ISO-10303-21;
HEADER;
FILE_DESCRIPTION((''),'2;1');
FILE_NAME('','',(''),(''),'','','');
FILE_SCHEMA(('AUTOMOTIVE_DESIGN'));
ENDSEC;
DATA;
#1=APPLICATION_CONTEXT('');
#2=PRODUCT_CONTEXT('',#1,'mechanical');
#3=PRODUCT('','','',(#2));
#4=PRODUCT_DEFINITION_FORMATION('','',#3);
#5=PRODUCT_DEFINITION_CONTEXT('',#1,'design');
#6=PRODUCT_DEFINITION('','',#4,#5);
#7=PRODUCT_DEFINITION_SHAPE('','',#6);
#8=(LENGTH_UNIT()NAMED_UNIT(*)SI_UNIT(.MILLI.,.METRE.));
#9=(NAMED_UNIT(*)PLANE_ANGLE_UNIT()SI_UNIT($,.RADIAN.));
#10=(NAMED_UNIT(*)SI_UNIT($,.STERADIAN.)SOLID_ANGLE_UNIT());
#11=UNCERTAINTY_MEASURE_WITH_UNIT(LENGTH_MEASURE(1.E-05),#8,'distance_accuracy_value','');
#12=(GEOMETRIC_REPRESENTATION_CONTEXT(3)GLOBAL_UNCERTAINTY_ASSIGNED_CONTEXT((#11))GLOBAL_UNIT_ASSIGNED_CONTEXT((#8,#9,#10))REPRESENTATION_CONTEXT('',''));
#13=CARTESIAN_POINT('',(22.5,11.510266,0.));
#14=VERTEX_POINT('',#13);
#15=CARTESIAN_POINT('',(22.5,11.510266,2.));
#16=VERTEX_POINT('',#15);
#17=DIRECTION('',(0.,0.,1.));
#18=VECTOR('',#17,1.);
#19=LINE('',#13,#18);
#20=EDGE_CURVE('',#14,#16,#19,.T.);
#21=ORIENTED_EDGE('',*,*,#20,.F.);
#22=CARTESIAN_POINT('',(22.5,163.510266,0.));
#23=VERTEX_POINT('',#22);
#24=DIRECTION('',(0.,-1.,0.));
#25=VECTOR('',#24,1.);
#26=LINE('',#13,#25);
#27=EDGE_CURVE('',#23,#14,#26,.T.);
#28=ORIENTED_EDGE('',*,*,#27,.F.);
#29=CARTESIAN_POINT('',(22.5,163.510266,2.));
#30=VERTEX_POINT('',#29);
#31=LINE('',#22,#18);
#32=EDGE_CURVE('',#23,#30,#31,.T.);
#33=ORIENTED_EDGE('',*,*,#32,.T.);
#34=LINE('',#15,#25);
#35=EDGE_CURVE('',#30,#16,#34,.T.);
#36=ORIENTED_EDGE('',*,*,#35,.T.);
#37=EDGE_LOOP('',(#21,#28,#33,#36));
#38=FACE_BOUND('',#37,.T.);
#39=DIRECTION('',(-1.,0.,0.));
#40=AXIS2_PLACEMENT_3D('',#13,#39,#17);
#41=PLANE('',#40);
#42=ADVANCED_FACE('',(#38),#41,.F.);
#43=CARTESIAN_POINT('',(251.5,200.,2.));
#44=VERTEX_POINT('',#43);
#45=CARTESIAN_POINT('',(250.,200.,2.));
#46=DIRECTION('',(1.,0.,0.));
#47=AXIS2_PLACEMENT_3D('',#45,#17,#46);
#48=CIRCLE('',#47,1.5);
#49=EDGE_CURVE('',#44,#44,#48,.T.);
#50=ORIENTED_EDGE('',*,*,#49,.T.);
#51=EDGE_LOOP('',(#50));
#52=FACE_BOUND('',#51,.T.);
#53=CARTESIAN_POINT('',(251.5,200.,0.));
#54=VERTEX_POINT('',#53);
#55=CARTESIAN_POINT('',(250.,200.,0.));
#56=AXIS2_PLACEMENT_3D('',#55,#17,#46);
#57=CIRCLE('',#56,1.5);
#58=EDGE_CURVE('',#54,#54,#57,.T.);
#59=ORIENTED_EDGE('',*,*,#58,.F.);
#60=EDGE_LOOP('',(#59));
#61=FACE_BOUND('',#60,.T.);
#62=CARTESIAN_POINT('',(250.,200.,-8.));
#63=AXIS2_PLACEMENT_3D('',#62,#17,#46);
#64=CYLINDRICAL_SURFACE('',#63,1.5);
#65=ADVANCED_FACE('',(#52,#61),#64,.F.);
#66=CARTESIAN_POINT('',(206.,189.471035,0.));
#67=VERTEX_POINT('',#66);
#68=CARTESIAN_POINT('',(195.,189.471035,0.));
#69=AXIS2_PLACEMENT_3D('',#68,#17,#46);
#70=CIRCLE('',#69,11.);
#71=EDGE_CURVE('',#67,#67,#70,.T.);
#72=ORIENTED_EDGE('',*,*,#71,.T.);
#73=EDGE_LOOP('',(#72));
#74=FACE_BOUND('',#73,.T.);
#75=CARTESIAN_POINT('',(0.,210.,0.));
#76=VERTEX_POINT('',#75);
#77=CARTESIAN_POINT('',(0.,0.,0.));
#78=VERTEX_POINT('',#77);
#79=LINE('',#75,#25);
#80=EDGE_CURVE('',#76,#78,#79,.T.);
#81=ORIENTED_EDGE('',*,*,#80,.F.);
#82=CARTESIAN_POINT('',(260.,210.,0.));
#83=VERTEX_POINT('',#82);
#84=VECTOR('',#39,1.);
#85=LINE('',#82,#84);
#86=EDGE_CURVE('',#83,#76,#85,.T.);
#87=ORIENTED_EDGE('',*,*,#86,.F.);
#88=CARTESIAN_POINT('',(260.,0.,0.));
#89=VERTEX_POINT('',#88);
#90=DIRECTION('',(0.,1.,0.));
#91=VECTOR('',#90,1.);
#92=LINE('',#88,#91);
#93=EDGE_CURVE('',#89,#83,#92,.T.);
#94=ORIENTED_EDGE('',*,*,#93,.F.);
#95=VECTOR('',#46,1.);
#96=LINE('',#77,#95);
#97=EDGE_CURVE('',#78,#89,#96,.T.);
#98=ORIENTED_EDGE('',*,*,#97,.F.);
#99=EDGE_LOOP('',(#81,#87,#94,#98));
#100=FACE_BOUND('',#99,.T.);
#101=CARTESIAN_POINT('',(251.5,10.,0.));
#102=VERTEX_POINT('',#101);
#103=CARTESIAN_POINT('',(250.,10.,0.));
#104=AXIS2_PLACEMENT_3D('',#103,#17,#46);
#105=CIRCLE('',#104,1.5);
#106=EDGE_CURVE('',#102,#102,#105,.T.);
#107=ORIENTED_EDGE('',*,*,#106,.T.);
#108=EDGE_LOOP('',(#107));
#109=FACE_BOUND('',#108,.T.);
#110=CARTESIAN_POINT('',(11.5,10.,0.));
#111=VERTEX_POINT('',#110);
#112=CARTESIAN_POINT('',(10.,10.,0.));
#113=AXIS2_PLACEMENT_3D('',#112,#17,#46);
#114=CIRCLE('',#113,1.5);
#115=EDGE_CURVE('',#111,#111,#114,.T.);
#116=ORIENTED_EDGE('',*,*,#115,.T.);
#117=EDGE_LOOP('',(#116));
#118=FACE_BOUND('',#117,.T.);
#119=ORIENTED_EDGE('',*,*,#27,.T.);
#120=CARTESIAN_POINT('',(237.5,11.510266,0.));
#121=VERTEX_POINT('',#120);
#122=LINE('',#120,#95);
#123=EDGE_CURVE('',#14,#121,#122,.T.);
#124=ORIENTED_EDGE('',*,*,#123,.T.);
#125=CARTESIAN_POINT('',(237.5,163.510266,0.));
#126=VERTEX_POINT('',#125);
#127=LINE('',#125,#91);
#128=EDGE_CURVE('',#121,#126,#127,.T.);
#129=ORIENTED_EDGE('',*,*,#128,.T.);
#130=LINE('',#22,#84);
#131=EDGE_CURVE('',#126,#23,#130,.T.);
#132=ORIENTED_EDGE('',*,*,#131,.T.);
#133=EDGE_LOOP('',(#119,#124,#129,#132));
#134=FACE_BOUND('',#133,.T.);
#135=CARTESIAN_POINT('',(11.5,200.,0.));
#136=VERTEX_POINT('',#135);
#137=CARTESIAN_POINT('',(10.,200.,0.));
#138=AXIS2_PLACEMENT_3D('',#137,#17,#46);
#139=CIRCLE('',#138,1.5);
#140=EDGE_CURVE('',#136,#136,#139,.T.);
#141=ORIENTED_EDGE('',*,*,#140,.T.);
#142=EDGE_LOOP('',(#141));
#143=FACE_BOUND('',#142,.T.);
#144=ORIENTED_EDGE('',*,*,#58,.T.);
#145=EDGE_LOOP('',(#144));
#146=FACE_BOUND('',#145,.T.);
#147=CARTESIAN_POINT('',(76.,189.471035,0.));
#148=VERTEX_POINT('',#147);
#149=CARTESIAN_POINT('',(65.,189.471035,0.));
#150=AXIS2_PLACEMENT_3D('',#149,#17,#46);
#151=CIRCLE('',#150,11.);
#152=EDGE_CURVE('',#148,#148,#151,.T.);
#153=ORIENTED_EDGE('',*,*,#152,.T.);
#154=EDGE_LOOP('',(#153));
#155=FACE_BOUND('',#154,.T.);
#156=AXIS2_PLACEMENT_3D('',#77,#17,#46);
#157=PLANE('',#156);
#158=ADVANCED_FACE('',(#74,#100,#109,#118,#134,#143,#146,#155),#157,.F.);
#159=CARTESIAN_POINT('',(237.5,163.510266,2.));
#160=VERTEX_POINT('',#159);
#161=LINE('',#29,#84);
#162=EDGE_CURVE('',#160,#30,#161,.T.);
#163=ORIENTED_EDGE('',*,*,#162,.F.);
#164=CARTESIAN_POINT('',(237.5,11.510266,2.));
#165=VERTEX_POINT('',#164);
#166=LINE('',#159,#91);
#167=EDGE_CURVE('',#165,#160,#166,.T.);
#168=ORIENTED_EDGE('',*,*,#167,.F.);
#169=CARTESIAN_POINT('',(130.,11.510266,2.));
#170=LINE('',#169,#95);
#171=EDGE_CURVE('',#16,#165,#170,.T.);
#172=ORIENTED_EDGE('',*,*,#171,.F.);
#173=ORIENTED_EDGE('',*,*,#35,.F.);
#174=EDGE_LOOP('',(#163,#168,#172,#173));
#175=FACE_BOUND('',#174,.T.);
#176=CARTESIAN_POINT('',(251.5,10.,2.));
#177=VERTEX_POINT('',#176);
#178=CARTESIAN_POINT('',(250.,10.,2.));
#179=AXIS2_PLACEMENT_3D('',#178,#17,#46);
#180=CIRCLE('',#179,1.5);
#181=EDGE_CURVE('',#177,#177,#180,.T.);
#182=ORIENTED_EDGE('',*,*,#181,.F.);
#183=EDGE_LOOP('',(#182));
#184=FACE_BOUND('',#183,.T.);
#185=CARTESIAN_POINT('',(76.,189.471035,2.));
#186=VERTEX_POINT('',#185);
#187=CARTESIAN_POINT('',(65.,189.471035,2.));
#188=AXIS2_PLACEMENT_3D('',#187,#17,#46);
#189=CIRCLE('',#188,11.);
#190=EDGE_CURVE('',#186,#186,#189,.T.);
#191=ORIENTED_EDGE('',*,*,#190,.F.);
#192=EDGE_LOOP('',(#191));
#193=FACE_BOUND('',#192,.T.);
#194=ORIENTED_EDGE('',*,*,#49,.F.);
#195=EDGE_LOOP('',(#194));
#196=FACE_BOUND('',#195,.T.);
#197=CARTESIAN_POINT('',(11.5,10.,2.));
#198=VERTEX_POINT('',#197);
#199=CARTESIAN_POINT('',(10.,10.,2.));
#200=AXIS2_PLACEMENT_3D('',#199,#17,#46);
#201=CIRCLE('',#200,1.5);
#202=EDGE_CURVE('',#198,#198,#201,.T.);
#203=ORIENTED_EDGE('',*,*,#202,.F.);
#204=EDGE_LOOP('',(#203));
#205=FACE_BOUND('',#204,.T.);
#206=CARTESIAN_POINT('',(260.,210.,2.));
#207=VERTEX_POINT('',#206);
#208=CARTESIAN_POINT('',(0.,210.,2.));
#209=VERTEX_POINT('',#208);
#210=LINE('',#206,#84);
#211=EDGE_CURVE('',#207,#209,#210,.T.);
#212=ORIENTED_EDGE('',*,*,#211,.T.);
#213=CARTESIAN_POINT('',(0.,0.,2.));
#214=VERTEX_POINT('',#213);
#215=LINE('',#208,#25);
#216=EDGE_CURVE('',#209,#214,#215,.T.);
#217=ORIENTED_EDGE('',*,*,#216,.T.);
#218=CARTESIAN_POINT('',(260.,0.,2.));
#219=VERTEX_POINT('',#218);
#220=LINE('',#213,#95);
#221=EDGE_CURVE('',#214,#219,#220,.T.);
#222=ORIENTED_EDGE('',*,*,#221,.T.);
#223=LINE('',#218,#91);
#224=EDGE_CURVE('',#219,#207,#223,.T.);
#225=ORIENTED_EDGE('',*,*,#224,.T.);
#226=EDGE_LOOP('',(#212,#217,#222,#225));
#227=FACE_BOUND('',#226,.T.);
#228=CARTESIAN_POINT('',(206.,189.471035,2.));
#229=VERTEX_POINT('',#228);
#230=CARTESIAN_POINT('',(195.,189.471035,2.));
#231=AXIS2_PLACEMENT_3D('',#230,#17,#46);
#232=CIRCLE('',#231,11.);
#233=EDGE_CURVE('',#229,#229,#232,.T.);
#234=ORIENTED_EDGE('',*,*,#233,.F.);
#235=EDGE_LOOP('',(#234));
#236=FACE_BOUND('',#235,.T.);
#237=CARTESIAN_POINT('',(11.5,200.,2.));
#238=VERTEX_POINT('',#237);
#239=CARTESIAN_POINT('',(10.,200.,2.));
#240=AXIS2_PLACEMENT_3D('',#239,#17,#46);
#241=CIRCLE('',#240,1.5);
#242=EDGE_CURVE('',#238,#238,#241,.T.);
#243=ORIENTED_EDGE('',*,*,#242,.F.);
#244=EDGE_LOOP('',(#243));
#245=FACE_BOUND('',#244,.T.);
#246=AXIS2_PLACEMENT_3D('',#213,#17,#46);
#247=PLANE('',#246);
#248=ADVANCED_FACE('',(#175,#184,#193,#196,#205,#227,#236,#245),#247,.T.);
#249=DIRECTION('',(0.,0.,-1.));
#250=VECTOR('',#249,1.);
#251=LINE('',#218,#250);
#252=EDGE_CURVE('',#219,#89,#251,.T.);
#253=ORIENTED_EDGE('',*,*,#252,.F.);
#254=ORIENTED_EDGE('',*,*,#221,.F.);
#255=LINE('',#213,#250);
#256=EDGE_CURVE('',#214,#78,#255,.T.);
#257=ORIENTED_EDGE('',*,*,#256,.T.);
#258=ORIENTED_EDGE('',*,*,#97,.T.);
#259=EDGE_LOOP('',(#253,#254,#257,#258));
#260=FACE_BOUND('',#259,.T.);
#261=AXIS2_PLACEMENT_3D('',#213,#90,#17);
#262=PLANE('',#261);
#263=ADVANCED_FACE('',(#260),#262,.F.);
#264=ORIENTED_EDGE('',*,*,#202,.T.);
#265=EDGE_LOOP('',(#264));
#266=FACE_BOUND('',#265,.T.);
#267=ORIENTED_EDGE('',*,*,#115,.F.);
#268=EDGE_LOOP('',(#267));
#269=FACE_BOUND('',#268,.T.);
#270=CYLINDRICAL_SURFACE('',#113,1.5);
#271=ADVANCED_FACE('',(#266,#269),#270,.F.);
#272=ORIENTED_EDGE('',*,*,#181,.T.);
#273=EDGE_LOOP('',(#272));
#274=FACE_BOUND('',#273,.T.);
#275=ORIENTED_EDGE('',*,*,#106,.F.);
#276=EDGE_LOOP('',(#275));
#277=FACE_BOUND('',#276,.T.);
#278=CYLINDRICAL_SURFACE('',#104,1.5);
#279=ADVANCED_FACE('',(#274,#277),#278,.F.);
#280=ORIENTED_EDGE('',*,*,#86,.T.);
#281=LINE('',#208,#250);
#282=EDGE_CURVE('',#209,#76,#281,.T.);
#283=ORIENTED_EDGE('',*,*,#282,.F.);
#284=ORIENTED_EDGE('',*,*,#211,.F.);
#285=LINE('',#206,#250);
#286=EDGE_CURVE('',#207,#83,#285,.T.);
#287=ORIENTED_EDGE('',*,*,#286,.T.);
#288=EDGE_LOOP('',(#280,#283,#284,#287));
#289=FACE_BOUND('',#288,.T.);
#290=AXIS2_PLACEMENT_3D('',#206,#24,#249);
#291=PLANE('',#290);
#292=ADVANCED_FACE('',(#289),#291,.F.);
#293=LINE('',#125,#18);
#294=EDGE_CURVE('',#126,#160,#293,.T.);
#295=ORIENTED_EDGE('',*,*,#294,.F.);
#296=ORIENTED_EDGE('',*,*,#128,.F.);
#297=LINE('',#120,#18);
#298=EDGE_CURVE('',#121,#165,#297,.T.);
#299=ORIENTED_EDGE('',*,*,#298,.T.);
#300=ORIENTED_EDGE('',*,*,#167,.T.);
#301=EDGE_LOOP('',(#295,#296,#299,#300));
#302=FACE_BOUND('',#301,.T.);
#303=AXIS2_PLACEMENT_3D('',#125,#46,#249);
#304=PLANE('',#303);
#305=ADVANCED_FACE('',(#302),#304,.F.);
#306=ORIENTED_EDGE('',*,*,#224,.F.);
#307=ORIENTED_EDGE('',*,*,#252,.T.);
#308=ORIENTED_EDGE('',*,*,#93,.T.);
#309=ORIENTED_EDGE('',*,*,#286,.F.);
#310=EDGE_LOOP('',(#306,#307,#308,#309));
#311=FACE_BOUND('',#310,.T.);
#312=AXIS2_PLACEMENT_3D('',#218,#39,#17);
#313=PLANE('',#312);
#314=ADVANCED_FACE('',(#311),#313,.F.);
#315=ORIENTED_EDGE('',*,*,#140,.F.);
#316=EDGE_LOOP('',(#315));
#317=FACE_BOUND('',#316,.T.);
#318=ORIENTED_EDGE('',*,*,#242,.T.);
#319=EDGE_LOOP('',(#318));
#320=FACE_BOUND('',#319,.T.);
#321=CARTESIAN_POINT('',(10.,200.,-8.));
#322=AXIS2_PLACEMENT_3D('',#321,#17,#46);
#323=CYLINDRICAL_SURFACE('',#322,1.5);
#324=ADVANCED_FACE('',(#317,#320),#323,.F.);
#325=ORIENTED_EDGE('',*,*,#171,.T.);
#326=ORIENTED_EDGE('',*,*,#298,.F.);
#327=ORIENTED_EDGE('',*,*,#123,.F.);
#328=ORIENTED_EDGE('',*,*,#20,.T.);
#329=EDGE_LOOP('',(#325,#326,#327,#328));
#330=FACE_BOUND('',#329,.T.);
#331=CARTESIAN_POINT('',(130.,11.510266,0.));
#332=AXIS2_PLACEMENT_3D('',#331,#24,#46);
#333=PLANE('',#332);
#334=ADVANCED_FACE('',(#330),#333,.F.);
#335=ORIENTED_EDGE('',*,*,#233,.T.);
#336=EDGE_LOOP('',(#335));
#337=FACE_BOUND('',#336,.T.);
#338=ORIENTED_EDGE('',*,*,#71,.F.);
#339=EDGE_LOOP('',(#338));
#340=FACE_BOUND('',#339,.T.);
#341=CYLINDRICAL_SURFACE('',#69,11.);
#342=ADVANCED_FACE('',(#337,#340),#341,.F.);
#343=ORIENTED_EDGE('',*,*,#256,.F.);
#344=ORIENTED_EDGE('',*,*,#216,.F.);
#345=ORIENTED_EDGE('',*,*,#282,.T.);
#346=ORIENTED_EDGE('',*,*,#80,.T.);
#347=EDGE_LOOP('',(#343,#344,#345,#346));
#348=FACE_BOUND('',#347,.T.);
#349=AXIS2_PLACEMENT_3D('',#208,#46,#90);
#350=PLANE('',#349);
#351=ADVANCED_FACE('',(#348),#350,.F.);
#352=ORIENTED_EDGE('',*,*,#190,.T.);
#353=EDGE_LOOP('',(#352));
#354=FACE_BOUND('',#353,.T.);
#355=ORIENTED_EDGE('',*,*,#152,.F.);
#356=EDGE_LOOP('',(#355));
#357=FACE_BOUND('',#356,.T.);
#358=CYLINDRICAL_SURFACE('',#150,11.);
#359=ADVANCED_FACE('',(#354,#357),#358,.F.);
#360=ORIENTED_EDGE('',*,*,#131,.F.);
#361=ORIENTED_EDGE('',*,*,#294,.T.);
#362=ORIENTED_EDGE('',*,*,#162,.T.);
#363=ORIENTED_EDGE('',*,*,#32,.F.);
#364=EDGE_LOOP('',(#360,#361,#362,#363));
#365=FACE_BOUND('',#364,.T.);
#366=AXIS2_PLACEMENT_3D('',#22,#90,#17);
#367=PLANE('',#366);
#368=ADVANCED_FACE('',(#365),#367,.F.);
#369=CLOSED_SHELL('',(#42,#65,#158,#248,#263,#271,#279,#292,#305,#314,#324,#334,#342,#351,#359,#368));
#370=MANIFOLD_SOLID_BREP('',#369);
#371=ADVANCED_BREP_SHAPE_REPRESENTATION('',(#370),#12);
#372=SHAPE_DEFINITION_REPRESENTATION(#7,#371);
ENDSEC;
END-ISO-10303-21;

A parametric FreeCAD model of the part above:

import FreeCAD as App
import Part
import Sketcher

V = App.Vector


def add_polygon(sketch, points):
    """Adds a closed chain of lines whose ends are joined by coincident constraints."""
    first, n = sketch.GeometryCount, len(points)
    for a, b in zip(points, points[1:] + points[:1]):
        sketch.addGeometry(Part.LineSegment(App.Vector(*a, 0), App.Vector(*b, 0)), False)
    for i in range(n):
        sketch.addConstraint(Sketcher.Constraint("Coincident", first + i, 2, first + (i + 1) % n, 1))

doc = App.newDocument("Part")
params = doc.addObject("Spreadsheet::Sheet", "Params")
for row, (alias, value) in enumerate([
    ("sketch1_width", "260 mm"),
    ("sketch1_height", "210 mm"),
    ("pad1_length", "2 mm"),
    ("sketch2_diameter", "22 mm"),
    ("sketch2_width", "215 mm"),
    ("sketch2_height", "152 mm"),
    ("pocket1_length", "2 mm"),
    ("sketch3_diameter", "3 mm"),
    ("pocket2_length", "2 mm"),
    ("sketch4_diameter", "3 mm"),
    ("pocket3_length", "10 mm"),
], start=1):
    params.set(f"A{row}", alias)
    params.set(f"B{row}", "=" + value)
    params.setAlias(f"B{row}", alias)

body = doc.addObject("PartDesign::Body", "Body")

# Sketch on XY plane
sketch1 = body.newObject("Sketcher::SketchObject", "Sketch")
sketch1.AttachmentSupport = (doc.getObject("XY_Plane"), [""])
sketch1.MapMode = "FlatFace"
add_polygon(sketch1, [(0, 210), (0, 0), (260, 0), (260, 210)])  # lines 0-3
sketch1.addConstraint([
    Sketcher.Constraint("Vertical", 0),
    Sketcher.Constraint("Horizontal", 1),
    Sketcher.Constraint("Vertical", 2),
    Sketcher.Constraint("Horizontal", 3),
    Sketcher.Constraint("Coincident", 0, 2, -1, 1),
    Sketcher.Constraint("DistanceX", 1, 1, 1, 2, 260.0),
    Sketcher.Constraint("DistanceY", 0, 2, 0, 1, 210.0),
])
sketch1.setExpression("Constraints[9]", "Params.sketch1_width")
sketch1.setExpression("Constraints[10]", "Params.sketch1_height")
pad1 = body.newObject("PartDesign::Pad", "Pad")
pad1.Profile = sketch1
pad1.setExpression("Length", "Params.pad1_length")

# Sketch on XY plane
sketch2 = body.newObject("Sketcher::SketchObject", "Sketch001")
sketch2.AttachmentSupport = (doc.getObject("XY_Plane"), [""])
sketch2.MapMode = "FlatFace"
sketch2.AttachmentOffset = App.Placement(V(0, 0, 2), App.Rotation())
sketch2.addGeometry(Part.Circle(V(65, 189, 0), V(0, 0, 1), 11), False)  # 0
sketch2.addGeometry(Part.Circle(V(195, 189, 0), V(0, 0, 1), 11), False)  # 1
add_polygon(sketch2, [(22, 12), (238, 12), (238, 164), (22, 164)])  # lines 2-5
sketch2.addConstraint([
    Sketcher.Constraint("Horizontal", 2),
    Sketcher.Constraint("Vertical", 3),
    Sketcher.Constraint("Horizontal", 4),
    Sketcher.Constraint("Vertical", 5),
    Sketcher.Constraint("Equal", 0, 1),
    Sketcher.Constraint("Horizontal", 0, 3, 1, 3),
    Sketcher.Constraint("Diameter", 0, 22.0),
    Sketcher.Constraint("DistanceX", 2, 1, 2, 2, 215.0),
    Sketcher.Constraint("DistanceY", 3, 1, 3, 2, 152.0),
    Sketcher.Constraint("DistanceX", -1, 1, 0, 3, 65.0),
    Sketcher.Constraint("DistanceX", -1, 1, 1, 3, 195.0),
    Sketcher.Constraint("DistanceX", -1, 1, 2, 2, 237.5),
    Sketcher.Constraint("DistanceY", 2, 2, 1, 3, 177.960769),
    Sketcher.Constraint("DistanceY", -1, 1, 0, 3, 189.471035),
])
sketch2.setExpression("Constraints[10]", "Params.sketch2_diameter")
sketch2.setExpression("Constraints[11]", "Params.sketch2_width")
sketch2.setExpression("Constraints[12]", "Params.sketch2_height")
pocket1 = body.newObject("PartDesign::Pocket", "Pocket")
pocket1.Profile = sketch2
pocket1.setExpression("Length", "Params.pocket1_length")

# Sketch on XY plane
sketch3 = body.newObject("Sketcher::SketchObject", "Sketch002")
sketch3.AttachmentSupport = (doc.getObject("XY_Plane"), [""])
sketch3.MapMode = "FlatFace"
sketch3.AttachmentOffset = App.Placement(V(0, 0, 2), App.Rotation())
sketch3.addGeometry([
    Part.Circle(V(250, 230, 0), V(0, 0, 1), 1.5),
    Part.Circle(V(10, 10, 0), V(0, 0, 1), 1.5),
    Part.Circle(V(250, 10, 0), V(0, 0, 1), 1.5),
    Part.Circle(V(10, 230, 0), V(0, 0, 1), 1.5),
], False)
sketch3.addConstraint([
    Sketcher.Constraint("Equal", 0, 1),
    Sketcher.Constraint("Equal", 1, 2),
    Sketcher.Constraint("Equal", 2, 3),
    Sketcher.Constraint("Horizontal", 1, 3, 2, 3),
    Sketcher.Constraint("Horizontal", 0, 3, 3, 3),
    Sketcher.Constraint("Vertical", 0, 3, 2, 3),
    Sketcher.Constraint("Vertical", 1, 3, 3, 3),
    Sketcher.Constraint("Diameter", 0, 3.0),
    Sketcher.Constraint("DistanceX", -1, 1, 0, 3, 250.0),
    Sketcher.Constraint("DistanceY", -1, 1, 0, 3, 230.0),
    Sketcher.Constraint("DistanceX", -1, 1, 1, 3, 10.0),
    Sketcher.Constraint("DistanceY", -1, 1, 1, 3, 10.0),
])
sketch3.setExpression("Constraints[7]", "Params.sketch3_diameter")
pocket2 = body.newObject("PartDesign::Pocket", "Pocket001")
pocket2.Profile = sketch3
pocket2.setExpression("Length", "Params.pocket2_length")

# Sketch on XY plane
sketch4 = body.newObject("Sketcher::SketchObject", "Sketch003")
sketch4.AttachmentSupport = (doc.getObject("XY_Plane"), [""])
sketch4.MapMode = "FlatFace"
sketch4.AttachmentOffset = App.Placement(V(0, 0, 2), App.Rotation())
sketch4.addGeometry([
    Part.Circle(V(10, 200, 0), V(0, 0, 1), 1.5),
    Part.Circle(V(250, 200, 0), V(0, 0, 1), 1.5),
], False)
sketch4.addConstraint([
    Sketcher.Constraint("Equal", 0, 1),
    Sketcher.Constraint("Horizontal", 0, 3, 1, 3),
    Sketcher.Constraint("Diameter", 0, 3.0),
    Sketcher.Constraint("DistanceX", -1, 1, 0, 3, 10.0),
    Sketcher.Constraint("DistanceY", -1, 1, 0, 3, 200.0),
    Sketcher.Constraint("DistanceX", -1, 1, 1, 3, 250.0),
])
sketch4.setExpression("Constraints[2]", "Params.sketch4_diameter")
pocket3 = body.newObject("PartDesign::Pocket", "Pocket002")
pocket3.Profile = sketch4
pocket3.setExpression("Length", "Params.pocket3_length")

doc.recompute()
